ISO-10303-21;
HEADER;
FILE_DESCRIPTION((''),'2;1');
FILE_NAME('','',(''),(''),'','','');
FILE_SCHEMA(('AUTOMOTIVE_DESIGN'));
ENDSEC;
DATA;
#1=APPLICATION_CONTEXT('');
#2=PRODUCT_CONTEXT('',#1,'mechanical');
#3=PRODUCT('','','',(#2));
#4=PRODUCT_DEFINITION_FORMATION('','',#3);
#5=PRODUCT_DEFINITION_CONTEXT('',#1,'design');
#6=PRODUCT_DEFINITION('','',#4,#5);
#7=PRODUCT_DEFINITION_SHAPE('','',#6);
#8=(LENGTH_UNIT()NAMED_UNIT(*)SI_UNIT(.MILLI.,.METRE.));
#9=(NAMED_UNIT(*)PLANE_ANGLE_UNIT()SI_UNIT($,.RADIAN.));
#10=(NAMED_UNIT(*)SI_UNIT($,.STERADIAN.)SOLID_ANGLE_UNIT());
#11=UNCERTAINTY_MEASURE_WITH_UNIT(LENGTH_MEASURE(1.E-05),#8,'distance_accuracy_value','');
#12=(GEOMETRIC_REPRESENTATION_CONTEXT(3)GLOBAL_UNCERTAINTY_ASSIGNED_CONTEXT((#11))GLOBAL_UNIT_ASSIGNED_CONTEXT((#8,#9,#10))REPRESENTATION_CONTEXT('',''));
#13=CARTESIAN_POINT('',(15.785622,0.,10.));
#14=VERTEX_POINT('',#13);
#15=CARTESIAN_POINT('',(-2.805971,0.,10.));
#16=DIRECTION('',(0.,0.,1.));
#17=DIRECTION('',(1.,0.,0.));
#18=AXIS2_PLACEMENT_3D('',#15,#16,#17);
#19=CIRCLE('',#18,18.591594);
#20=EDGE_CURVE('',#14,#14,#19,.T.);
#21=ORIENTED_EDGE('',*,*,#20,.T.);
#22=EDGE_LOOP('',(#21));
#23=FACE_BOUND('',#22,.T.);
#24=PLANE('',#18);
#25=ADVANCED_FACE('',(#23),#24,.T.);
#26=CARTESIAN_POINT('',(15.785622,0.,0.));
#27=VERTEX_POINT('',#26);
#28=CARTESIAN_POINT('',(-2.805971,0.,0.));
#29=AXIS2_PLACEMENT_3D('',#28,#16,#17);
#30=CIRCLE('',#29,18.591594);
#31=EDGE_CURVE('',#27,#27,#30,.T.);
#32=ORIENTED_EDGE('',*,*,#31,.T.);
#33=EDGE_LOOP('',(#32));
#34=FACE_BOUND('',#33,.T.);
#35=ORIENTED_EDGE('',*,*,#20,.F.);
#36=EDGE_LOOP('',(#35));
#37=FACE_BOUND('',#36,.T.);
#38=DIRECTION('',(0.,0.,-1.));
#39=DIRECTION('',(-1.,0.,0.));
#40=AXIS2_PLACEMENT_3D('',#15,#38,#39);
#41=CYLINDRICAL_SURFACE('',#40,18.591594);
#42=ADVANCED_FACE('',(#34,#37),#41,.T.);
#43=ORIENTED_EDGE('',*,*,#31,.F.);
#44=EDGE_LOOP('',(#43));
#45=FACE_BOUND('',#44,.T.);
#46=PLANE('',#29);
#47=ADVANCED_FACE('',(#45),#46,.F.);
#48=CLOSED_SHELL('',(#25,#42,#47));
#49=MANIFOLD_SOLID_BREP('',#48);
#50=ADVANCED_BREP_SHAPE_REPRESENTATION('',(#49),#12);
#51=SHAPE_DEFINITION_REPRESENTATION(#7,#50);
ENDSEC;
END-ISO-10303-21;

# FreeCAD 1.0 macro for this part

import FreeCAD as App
import Part
import Sketcher

V = App.Vector

doc = App.newDocument("Part")
body = doc.addObject("PartDesign::Body", "Body")

sketch1 = body.newObject("Sketcher::SketchObject", "Sketch")
sketch1.AttachmentSupport = (doc.getObject("XY_Plane"), [""])
sketch1.MapMode = "FlatFace"
sketch1.addGeometry(Part.Circle(V(-3, 0, 0), V(0, 0, 1), 19), False)
sketch1.addConstraint(Sketcher.Constraint("PointOnObject", 0, 3, -1))
sketch1.addConstraint(Sketcher.Constraint("Diameter", 0, 37.183187))
sketch1.addConstraint(Sketcher.Constraint("DistanceX", 0, 3, -1, 1, 2.805971))
pad1 = body.newObject("PartDesign::Pad", "Pad")
pad1.Profile = sketch1
pad1.Length = 10

doc.recompute()
